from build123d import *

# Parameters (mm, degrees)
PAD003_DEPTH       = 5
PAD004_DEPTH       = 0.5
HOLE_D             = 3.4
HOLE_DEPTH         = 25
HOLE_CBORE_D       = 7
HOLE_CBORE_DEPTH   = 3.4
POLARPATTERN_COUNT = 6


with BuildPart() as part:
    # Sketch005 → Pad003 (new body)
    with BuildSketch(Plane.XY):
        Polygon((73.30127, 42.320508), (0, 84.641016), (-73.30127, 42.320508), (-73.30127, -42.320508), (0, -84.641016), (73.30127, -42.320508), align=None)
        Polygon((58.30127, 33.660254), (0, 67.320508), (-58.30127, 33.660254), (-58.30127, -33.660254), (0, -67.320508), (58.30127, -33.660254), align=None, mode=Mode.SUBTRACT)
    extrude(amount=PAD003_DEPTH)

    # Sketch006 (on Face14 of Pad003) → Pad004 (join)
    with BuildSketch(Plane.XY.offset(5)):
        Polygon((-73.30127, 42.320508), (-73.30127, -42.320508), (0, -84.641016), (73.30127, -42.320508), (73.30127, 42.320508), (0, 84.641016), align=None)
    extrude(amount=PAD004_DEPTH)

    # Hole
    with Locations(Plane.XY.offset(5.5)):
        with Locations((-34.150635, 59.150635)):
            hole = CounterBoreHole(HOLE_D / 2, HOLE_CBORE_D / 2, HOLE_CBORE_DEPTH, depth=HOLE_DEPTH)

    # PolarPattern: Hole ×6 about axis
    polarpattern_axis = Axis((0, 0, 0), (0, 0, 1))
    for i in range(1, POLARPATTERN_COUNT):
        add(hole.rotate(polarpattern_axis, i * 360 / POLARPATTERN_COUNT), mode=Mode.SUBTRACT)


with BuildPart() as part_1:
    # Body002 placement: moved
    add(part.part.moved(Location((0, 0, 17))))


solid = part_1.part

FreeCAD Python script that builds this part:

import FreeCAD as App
import Part
import Sketcher

V = App.Vector
Q = App.Units.Quantity

doc = App.newDocument("Part")
body = doc.addObject("PartDesign::Body", "Body")

sketch1 = doc.addObject("Sketcher::SketchObject", "Sketch")
body.addObject(sketch1)
sketch1.AttachmentSupport = (doc.XY_Plane, [""])
sketch1.MapMode = "FlatFace"
sketch1.addGeometry([
    Part.LineSegment(V(73, 42, 0), V(0, 85, 0)),
    Part.LineSegment(V(0, 85, 0), V(-73, 42, 0)),
    Part.LineSegment(V(-73, 42, 0), V(-73, -42, 0)),
    Part.LineSegment(V(-73, -42, 0), V(0, -85, 0)),
    Part.LineSegment(V(0, -85, 0), V(73, -42, 0)),
    Part.LineSegment(V(73, -42, 0), V(73, 42, 0)),
    Part.LineSegment(V(0, 67, 0), V(58, 34, 0)),
    Part.LineSegment(V(58, 34, 0), V(58, -34, 0)),
    Part.LineSegment(V(58, -34, 0), V(0, -67, 0)),
    Part.LineSegment(V(0, -67, 0), V(-58, -34, 0)),
    Part.LineSegment(V(-58, -34, 0), V(-58, 34, 0)),
    Part.LineSegment(V(-58, 34, 0), V(0, 67, 0)),
], False)
sketch1.addConstraint([
    Sketcher.Constraint("Coincident", 0, 2, 1, 1),
    Sketcher.Constraint("Coincident", 1, 2, 2, 1),
    Sketcher.Constraint("Coincident", 2, 2, 3, 1),
    Sketcher.Constraint("Coincident", 3, 2, 4, 1),
    Sketcher.Constraint("Coincident", 4, 2, 5, 1),
    Sketcher.Constraint("Coincident", 5, 2, 0, 1),
    Sketcher.Constraint("Coincident", 6, 2, 7, 1),
    Sketcher.Constraint("Coincident", 7, 2, 8, 1),
    Sketcher.Constraint("Coincident", 8, 2, 9, 1),
    Sketcher.Constraint("Coincident", 9, 2, 10, 1),
    Sketcher.Constraint("Coincident", 10, 2, 11, 1),
    Sketcher.Constraint("Coincident", 11, 2, 6, 1),
    Sketcher.Constraint("Vertical", 2),
    Sketcher.Constraint("Vertical", 5),
    Sketcher.Constraint("Vertical", 7),
    Sketcher.Constraint("Vertical", 10),
    Sketcher.Constraint("Symmetric", 0, 2, 3, 2, -1, 1),
    Sketcher.Constraint("Symmetric", 1, 2, 4, 2, -1, 1),
    Sketcher.Constraint("Symmetric", 6, 2, 9, 2, -1, 1),
    Sketcher.Constraint("Symmetric", 8, 2, 11, 2, -1, 1),
    Sketcher.Constraint("PointOnObject", 0, 2, -2),
    Sketcher.Constraint("PointOnObject", 8, 2, -2),
    Sketcher.Constraint("Parallel", 0, 3),
    Sketcher.Constraint("Parallel", 3, 6),
    Sketcher.Constraint("Parallel", 4, 8),
    Sketcher.Constraint("Parallel", 8, 11),
    Sketcher.Constraint("Horizontal", 2, 2, 4, 2),
    Sketcher.Constraint("Angle", 0, Q("150 deg")),
    Sketcher.Constraint("DistanceX", 6, 2, 5, 2, Q("15 mm")),
    Sketcher.Constraint("DistanceY", 8, 2, 2, 2, Q("25 mm")),
    Sketcher.Constraint("DistanceY", 7, 2, 7, 1, Q("67.320508 mm")),
    Sketcher.Constraint("DistanceY", 2, 2, 2, 1, Q("84.641016 mm")),
])
pad1 = doc.addObject("PartDesign::Pad", "Pad")
body.addObject(pad1)
pad1.Profile = sketch1
pad1.Length = 5

sketch2 = doc.addObject("Sketcher::SketchObject", "Sketch001")
body.addObject(sketch2)
sketch2.AttachmentSupport = (doc.XY_Plane, [""])
sketch2.MapMode = "FlatFace"
sketch2.AttachmentOffset = App.Placement(V(0, 0, 5), App.Rotation())
sketch2.addGeometry([
    Part.LineSegment(V(-73, 42, 0), V(-73, -42, 0)),
    Part.LineSegment(V(-73, -42, 0), V(0, -85, 0)),
    Part.LineSegment(V(0, -85, 0), V(73, -42, 0)),
    Part.LineSegment(V(73, -42, 0), V(73, 42, 0)),
    Part.LineSegment(V(73, 42, 0), V(0, 85, 0)),
    Part.LineSegment(V(0, 85, 0), V(-73, 42, 0)),
], False)
sketch2.addConstraint([
    Sketcher.Constraint("Coincident", 0, 2, 1, 1),
    Sketcher.Constraint("Coincident", 1, 2, 2, 1),
    Sketcher.Constraint("Coincident", 2, 2, 3, 1),
    Sketcher.Constraint("Coincident", 3, 2, 4, 1),
    Sketcher.Constraint("Coincident", 4, 2, 5, 1),
    Sketcher.Constraint("Coincident", 5, 2, 0, 1),
    Sketcher.Constraint("Vertical", 0),
    Sketcher.Constraint("Vertical", 3),
    Sketcher.Constraint("Symmetric", 0, 2, 3, 2, -1, 1),
    Sketcher.Constraint("Symmetric", 1, 2, 4, 2, -1, 1),
    Sketcher.Constraint("PointOnObject", 1, 2, -2),
    Sketcher.Constraint("Parallel", 2, 5),
    Sketcher.Constraint("Horizontal", 0, 2, 2, 2),
    Sketcher.Constraint("Angle", 1, Q("-30 deg")),
    Sketcher.Constraint("DistanceY", 0, 2, 0, 1, Q("84.641016 mm")),
    Sketcher.Constraint("DistanceX", 0, 2, -1, 1, Q("73.30127 mm")),
])
pad2 = doc.addObject("PartDesign::Pad", "Pad001")
body.addObject(pad2)
pad2.Profile = sketch2
pad2.Length = 0.5

sketch3 = doc.addObject("Sketcher::SketchObject", "Sketch002")
body.addObject(sketch3)
sketch3.AttachmentSupport = (doc.XY_Plane, [""])
sketch3.MapMode = "FlatFace"
sketch3.AttachmentOffset = App.Placement(V(0, 0, 5.5), App.Rotation())
sketch3.addGeometry(Part.Circle(V(-34.2, 59.2, 0), V(0, 0, 1), 1.7), False)
sketch3.addConstraint([
    Sketcher.Constraint("Diameter", 0, Q("3.4 mm")),
    Sketcher.Constraint("DistanceX", 0, 3, -1, 1, Q("34.150635 mm")),
    Sketcher.Constraint("DistanceY", -1, 1, 0, 3, Q("59.150635 mm")),
])
doc.recompute()
hole = doc.addObject("PartDesign::Hole", "Hole")
body.addObject(hole)
hole.Profile = sketch3
hole.ThreadType = "None"
hole.Diameter = 3.4
hole.DepthType = "Dimension"
hole.Depth = 25
hole.DrillPoint = "Flat"
hole.HoleCutType = "Counterbore"
hole.HoleCutDiameter = 7
hole.HoleCutDepth = 3.4
doc.recompute()

polarpattern = doc.addObject("PartDesign::PolarPattern", "PolarPattern")
body.addObject(polarpattern)
polarpattern.Originals = [hole]
polarpattern.Axis = (doc.Z_Axis, [""])
polarpattern.Angle = 360
polarpattern.Occurrences = 6
body.Tip = polarpattern
body2 = doc.addObject("PartDesign::Body", "Body001")
doc.recompute()

body.Placement = App.Placement(V(0, 0, 17), App.Rotation(V(0, 0, 1), 0))
boolean = doc.addObject("PartDesign::Boolean", "Boolean")
body2.addObject(boolean)
boolean.Type = "Fuse"
boolean.addObjects([body])

doc.recompute()
